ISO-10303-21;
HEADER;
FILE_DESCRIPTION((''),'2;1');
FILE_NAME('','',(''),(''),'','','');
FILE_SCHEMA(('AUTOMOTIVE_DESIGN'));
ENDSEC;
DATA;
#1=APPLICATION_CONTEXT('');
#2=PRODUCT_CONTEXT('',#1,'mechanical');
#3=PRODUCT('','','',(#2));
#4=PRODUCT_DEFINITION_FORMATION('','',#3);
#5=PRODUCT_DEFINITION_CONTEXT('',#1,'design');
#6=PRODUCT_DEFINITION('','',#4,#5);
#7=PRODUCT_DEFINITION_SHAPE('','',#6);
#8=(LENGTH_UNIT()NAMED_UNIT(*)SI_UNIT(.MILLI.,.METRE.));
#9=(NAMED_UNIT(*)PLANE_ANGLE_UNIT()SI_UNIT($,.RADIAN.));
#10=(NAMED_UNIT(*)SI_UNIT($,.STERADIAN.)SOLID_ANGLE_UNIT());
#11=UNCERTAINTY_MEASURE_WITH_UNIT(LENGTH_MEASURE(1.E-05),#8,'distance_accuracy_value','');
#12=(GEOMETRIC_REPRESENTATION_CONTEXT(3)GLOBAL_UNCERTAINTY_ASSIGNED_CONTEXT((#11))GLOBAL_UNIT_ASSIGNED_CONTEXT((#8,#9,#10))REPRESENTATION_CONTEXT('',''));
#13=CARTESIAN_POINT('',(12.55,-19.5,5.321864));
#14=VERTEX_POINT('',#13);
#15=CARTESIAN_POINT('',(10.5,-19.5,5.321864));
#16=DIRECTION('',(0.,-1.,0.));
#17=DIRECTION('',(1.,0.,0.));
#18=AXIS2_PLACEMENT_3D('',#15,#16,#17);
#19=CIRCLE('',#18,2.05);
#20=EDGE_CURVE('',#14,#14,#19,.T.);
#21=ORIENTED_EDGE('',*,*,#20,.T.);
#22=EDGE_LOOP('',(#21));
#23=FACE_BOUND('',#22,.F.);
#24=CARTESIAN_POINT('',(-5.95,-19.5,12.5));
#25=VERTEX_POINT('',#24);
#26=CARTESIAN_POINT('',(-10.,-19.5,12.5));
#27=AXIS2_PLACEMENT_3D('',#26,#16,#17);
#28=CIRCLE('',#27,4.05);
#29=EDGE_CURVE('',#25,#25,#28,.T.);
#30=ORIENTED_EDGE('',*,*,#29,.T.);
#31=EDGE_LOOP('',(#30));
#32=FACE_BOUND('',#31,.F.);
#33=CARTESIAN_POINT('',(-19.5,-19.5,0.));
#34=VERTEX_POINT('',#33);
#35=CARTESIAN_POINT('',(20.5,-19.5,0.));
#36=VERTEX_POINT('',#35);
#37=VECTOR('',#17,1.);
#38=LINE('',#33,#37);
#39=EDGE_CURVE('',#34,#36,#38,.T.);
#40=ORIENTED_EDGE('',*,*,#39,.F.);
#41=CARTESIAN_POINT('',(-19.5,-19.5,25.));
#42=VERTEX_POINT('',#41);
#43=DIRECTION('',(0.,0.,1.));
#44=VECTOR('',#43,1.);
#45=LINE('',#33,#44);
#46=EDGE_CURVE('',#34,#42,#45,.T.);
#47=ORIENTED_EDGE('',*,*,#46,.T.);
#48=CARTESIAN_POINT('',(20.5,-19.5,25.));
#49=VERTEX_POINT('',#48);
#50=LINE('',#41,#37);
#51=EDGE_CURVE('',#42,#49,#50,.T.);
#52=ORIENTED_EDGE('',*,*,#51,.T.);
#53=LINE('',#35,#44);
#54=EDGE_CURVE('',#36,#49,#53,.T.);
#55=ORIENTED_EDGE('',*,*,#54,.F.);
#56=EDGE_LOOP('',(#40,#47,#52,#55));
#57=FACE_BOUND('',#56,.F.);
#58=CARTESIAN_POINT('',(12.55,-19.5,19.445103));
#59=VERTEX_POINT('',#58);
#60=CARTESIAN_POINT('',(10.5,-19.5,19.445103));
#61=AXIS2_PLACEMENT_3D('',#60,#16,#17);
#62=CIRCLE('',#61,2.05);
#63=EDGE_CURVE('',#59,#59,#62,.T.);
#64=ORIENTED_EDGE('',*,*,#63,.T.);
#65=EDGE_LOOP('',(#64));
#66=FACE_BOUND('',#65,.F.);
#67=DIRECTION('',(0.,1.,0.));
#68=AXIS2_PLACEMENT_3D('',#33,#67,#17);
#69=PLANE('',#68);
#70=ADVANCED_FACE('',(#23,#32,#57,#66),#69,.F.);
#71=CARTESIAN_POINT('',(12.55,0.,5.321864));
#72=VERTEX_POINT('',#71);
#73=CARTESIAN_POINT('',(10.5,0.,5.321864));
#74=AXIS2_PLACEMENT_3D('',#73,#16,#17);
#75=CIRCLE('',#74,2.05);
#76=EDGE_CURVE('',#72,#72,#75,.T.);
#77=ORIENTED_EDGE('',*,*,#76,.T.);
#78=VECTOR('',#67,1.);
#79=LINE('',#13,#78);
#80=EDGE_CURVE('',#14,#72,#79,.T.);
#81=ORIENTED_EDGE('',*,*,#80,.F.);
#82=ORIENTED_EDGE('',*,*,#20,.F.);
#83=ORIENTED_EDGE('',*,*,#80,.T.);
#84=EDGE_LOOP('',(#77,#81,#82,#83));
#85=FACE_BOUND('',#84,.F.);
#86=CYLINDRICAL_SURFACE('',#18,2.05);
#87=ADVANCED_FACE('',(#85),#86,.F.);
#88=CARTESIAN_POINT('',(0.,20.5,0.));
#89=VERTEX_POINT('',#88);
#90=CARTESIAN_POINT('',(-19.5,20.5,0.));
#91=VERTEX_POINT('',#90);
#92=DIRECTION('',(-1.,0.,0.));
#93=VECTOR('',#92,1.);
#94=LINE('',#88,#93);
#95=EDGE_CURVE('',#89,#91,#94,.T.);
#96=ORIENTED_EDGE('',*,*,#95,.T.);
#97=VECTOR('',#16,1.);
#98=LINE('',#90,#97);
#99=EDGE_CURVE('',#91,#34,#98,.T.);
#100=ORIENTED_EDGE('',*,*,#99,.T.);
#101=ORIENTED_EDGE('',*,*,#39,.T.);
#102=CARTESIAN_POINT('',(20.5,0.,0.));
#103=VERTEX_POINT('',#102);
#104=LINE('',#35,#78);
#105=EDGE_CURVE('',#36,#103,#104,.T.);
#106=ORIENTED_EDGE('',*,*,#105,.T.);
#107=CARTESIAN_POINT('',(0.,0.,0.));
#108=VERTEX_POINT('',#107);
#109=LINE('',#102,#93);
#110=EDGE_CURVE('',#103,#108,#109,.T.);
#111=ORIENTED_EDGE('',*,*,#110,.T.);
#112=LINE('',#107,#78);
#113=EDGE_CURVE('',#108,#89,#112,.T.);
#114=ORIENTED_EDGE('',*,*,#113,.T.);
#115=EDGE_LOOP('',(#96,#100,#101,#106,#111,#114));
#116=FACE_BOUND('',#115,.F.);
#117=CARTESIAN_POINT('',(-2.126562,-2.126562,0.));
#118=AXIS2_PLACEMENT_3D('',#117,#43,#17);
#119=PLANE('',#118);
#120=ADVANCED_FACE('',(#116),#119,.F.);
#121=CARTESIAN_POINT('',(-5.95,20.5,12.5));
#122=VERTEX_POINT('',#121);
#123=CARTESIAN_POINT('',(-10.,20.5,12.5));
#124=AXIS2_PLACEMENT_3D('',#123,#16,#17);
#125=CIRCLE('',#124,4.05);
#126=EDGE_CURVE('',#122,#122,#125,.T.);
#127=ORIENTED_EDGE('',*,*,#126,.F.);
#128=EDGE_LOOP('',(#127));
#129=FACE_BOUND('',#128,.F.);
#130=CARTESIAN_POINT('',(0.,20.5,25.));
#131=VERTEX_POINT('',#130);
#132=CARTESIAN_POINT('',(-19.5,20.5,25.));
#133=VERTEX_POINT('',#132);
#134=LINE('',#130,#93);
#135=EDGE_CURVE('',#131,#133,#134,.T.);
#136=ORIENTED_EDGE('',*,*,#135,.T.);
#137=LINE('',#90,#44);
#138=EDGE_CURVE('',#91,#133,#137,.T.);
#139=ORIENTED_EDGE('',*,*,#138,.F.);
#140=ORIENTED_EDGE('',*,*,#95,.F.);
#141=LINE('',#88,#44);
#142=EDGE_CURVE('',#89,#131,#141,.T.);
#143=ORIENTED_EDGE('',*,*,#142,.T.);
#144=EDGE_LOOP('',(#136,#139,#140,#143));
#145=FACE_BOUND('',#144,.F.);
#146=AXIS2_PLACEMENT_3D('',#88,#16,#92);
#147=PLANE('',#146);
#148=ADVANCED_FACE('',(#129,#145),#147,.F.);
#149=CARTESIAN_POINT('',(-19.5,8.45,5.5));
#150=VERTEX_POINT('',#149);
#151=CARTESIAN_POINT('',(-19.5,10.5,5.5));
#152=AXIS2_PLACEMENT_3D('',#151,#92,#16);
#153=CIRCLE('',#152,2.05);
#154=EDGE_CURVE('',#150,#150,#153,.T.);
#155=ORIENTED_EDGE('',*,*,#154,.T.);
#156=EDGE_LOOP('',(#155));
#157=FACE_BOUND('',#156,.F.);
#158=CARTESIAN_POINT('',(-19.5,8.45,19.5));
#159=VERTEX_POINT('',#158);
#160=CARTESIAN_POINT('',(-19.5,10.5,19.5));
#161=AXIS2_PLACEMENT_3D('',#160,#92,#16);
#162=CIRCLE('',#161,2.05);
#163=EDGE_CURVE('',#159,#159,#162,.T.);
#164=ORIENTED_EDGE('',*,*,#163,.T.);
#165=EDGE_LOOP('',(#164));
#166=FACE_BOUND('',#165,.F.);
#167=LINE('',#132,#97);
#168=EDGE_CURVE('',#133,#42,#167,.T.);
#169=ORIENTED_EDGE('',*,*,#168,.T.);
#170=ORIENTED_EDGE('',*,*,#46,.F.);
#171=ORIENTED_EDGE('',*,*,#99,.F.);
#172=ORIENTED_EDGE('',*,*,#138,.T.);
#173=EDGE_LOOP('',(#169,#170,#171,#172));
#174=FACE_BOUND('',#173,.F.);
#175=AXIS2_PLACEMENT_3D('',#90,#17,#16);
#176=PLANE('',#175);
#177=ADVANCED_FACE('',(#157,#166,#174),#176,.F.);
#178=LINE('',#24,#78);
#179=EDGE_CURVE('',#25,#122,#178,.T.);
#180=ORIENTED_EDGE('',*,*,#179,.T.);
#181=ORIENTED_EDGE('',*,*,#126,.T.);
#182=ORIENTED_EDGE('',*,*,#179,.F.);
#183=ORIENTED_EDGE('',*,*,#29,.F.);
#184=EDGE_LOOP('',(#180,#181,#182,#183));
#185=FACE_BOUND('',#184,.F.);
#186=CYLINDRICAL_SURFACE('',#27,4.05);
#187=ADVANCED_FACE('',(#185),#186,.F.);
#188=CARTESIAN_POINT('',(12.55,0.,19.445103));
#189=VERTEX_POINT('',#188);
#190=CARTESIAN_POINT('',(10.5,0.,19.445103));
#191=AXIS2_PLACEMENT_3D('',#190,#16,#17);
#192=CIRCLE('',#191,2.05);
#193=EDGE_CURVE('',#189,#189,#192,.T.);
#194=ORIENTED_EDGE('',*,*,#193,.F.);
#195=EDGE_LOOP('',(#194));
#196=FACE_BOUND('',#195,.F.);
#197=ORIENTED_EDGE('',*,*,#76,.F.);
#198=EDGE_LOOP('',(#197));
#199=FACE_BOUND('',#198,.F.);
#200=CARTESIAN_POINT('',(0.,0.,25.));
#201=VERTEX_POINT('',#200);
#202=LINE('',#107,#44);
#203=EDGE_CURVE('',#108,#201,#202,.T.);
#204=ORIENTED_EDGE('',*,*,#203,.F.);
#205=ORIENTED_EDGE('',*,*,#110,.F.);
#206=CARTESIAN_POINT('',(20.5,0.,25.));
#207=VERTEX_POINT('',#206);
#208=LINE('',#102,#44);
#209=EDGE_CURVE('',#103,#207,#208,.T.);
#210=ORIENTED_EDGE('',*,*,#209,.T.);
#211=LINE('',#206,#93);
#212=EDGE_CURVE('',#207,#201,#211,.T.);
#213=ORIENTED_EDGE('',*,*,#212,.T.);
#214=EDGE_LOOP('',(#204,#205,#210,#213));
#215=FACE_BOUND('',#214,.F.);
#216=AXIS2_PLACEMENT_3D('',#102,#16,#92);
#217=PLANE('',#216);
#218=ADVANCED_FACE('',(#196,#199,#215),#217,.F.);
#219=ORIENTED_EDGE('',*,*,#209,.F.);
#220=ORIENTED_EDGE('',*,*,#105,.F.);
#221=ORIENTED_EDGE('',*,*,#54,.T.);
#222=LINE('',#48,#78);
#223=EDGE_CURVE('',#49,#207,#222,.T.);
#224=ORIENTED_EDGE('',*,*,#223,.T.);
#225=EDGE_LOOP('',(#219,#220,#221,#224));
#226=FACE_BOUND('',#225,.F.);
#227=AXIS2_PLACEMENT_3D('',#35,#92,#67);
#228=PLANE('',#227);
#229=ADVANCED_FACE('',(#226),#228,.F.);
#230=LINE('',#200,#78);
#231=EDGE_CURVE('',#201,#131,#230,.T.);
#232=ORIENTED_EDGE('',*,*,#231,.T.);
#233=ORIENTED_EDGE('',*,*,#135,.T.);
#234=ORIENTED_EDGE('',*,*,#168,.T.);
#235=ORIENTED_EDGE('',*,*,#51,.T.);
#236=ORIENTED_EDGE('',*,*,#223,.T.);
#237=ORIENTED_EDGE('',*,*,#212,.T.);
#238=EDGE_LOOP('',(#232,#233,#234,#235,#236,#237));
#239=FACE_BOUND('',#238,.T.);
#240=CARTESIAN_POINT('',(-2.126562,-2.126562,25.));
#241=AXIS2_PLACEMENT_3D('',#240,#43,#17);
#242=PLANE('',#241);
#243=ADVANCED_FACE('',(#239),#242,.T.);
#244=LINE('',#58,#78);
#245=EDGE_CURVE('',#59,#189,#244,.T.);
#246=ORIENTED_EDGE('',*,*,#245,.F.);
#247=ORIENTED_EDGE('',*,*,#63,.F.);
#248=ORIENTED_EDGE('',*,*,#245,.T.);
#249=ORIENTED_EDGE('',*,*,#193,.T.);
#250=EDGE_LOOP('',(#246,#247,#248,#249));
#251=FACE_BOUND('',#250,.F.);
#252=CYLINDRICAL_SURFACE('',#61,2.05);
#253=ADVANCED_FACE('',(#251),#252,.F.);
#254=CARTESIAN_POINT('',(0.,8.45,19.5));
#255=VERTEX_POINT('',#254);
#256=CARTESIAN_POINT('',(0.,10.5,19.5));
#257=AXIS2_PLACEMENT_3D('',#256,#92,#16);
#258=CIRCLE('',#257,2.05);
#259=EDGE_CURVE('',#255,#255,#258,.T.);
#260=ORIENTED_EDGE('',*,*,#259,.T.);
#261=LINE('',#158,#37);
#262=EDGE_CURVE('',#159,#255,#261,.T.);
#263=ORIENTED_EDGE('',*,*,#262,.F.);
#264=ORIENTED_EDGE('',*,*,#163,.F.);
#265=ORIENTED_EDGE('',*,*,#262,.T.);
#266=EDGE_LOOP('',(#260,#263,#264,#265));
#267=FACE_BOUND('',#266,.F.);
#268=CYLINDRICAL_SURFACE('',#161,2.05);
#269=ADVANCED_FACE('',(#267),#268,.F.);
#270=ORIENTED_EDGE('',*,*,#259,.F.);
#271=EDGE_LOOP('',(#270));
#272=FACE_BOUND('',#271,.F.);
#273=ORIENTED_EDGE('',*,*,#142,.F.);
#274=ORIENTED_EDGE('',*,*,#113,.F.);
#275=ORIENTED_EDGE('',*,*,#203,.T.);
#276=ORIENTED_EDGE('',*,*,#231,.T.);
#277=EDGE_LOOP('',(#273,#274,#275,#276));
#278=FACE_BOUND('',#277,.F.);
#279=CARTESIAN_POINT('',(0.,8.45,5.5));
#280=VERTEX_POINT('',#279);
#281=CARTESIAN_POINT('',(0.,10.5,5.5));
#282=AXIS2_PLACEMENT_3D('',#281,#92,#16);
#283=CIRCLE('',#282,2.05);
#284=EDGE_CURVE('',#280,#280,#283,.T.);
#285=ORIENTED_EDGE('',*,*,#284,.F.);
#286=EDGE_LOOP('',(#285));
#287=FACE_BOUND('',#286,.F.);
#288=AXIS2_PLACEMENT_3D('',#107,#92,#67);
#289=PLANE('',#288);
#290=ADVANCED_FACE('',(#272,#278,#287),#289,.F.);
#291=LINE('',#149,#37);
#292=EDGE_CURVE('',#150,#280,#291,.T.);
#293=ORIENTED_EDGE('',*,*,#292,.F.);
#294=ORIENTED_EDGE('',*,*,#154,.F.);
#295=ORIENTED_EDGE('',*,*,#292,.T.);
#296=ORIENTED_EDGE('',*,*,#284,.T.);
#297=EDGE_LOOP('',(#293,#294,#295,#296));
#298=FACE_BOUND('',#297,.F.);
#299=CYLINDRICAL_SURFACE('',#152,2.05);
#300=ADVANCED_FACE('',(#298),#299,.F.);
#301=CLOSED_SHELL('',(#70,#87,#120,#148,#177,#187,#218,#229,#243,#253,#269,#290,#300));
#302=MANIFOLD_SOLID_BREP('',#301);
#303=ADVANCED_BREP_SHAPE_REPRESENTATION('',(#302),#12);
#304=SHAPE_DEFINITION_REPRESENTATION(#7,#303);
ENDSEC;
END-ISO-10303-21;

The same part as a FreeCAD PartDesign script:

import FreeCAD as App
import Part
import Sketcher
Q = App.Units.Quantity

doc = App.newDocument("Part")
body = doc.addObject("PartDesign::Body", "Body")

# Sketch on XY plane
sketch1 = body.newObject("Sketcher::SketchObject", "Sketch")
sketch1.AttachmentSupport = (doc.getObject("XY_Plane"), [""])
sketch1.MapMode = "FlatFace"
sketch1.addGeometry(Part.LineSegment(App.Vector(0, 20, 0), App.Vector(-20, 20, 0)), False)
sketch1.addGeometry(Part.LineSegment(App.Vector(-20, 20, 0), App.Vector(-20, -20, 0)), False)
sketch1.addGeometry(Part.LineSegment(App.Vector(-20, -20, 0), App.Vector(20, -20, 0)), False)
sketch1.addGeometry(Part.LineSegment(App.Vector(20, -20, 0), App.Vector(20, 0, 0)), False)
sketch1.addGeometry(Part.LineSegment(App.Vector(20, 0, 0), App.Vector(0, 0, 0)), False)
sketch1.addGeometry(Part.LineSegment(App.Vector(0, 0, 0), App.Vector(0, 20, 0)), False)
sketch1.addConstraint(Sketcher.Constraint("Coincident", 0, 2, 1, 1))
sketch1.addConstraint(Sketcher.Constraint("Coincident", 1, 2, 2, 1))
sketch1.addConstraint(Sketcher.Constraint("Coincident", 2, 2, 3, 1))
sketch1.addConstraint(Sketcher.Constraint("Coincident", 3, 2, 4, 1))
sketch1.addConstraint(Sketcher.Constraint("Coincident", 4, 2, 5, 1))
sketch1.addConstraint(Sketcher.Constraint("Coincident", 5, 2, 0, 1))
sketch1.addConstraint(Sketcher.Constraint("Horizontal", 0))
sketch1.addConstraint(Sketcher.Constraint("Vertical", 1))
sketch1.addConstraint(Sketcher.Constraint("Horizontal", 2))
sketch1.addConstraint(Sketcher.Constraint("Vertical", 3))
sketch1.addConstraint(Sketcher.Constraint("Horizontal", 4))
sketch1.addConstraint(Sketcher.Constraint("Vertical", 5))
sketch1.addConstraint(Sketcher.Constraint("Coincident", 4, 2, -1, 1))
sketch1.addConstraint(Sketcher.Constraint("Equal", 2, 1))
sketch1.addConstraint(Sketcher.Constraint("Equal", 0, 3))
sketch1.addConstraint(Sketcher.Constraint("DistanceX", 2, 1, 2, 2, Q("40 mm")))
sketch1.addConstraint(Sketcher.Constraint("DistanceX", 0, 2, 0, 1, Q("19.5 mm")))
pad1 = body.newObject("PartDesign::Pad", "Pad")
pad1.Profile = sketch1
pad1.Length = 25

# Sketch on XZ plane
sketch2 = body.newObject("Sketcher::SketchObject", "Sketch001")
sketch2.AttachmentSupport = (doc.getObject("XZ_Plane"), [""])
sketch2.MapMode = "FlatFace"
sketch2.AttachmentOffset = App.Placement(App.Vector(0, 0, 19.5), App.Rotation())
sketch2.addGeometry(Part.Circle(App.Vector(10.5, 19.4, 0), App.Vector(0, 0, 1), 2), False)
sketch2.addGeometry(Part.Circle(App.Vector(10.5, 5.3, 0), App.Vector(0, 0, 1), 2), False)
sketch2.addGeometry(Part.Circle(App.Vector(-10, 12.5, 0), App.Vector(0, 0, 1), 4), False)
sketch2.addConstraint(Sketcher.Constraint("Equal", 0, 1))
sketch2.addConstraint(Sketcher.Constraint("Vertical", 0, 3, 1, 3))
sketch2.addConstraint(Sketcher.Constraint("Diameter", 0, Q("4.1 mm")))
sketch2.addConstraint(Sketcher.Constraint("Diameter", 2, Q("8.1 mm")))
sketch2.addConstraint(Sketcher.Constraint("DistanceX", 2, 3, -1, 1, Q("10 mm")))
sketch2.addConstraint(Sketcher.Constraint("DistanceX", -1, 1, 0, 3, Q("10.5 mm")))
sketch2.addConstraint(Sketcher.Constraint("DistanceY", -1, 1, 2, 3, Q("12.5 mm")))
sketch2.addConstraint(Sketcher.Constraint("DistanceY", 1, 3, 0, 3, Q("14.123239 mm")))
sketch2.addConstraint(Sketcher.Constraint("DistanceY", -1, 1, 0, 3, Q("19.445103 mm")))
pocket1 = body.newObject("PartDesign::Pocket", "Pocket")
pocket1.Profile = sketch2
pocket1.Length = 45

# Sketch on YZ plane
sketch3 = body.newObject("Sketcher::SketchObject", "Sketch002")
sketch3.AttachmentSupport = (doc.getObject("YZ_Plane"), [""])
sketch3.MapMode = "FlatFace"
sketch3.AttachmentOffset = App.Placement(App.Vector(0, 0, -19.5), App.Rotation())
sketch3.addGeometry(Part.Circle(App.Vector(10.5, 19.5, 0), App.Vector(0, 0, 1), 2), False)
sketch3.addGeometry(Part.Circle(App.Vector(10.5, 5.5, 0), App.Vector(0, 0, 1), 2), False)
sketch3.addConstraint(Sketcher.Constraint("Equal", 0, 1))
sketch3.addConstraint(Sketcher.Constraint("Vertical", 0, 3, 1, 3))
sketch3.addConstraint(Sketcher.Constraint("Diameter", 0, Q("4.1 mm")))
sketch3.addConstraint(Sketcher.Constraint("DistanceY", 1, 3, 0, 3, Q("14 mm")))
sketch3.addConstraint(Sketcher.Constraint("DistanceX", -1, 1, 0, 3, Q("10.5 mm")))
sketch3.addConstraint(Sketcher.Constraint("DistanceY", -1, 1, 0, 3, Q("19.5 mm")))
pocket2 = body.newObject("PartDesign::Pocket", "Pocket001")
pocket2.Profile = sketch3
pocket2.Length = 25
pocket2.Reversed = True

doc.recompute()
